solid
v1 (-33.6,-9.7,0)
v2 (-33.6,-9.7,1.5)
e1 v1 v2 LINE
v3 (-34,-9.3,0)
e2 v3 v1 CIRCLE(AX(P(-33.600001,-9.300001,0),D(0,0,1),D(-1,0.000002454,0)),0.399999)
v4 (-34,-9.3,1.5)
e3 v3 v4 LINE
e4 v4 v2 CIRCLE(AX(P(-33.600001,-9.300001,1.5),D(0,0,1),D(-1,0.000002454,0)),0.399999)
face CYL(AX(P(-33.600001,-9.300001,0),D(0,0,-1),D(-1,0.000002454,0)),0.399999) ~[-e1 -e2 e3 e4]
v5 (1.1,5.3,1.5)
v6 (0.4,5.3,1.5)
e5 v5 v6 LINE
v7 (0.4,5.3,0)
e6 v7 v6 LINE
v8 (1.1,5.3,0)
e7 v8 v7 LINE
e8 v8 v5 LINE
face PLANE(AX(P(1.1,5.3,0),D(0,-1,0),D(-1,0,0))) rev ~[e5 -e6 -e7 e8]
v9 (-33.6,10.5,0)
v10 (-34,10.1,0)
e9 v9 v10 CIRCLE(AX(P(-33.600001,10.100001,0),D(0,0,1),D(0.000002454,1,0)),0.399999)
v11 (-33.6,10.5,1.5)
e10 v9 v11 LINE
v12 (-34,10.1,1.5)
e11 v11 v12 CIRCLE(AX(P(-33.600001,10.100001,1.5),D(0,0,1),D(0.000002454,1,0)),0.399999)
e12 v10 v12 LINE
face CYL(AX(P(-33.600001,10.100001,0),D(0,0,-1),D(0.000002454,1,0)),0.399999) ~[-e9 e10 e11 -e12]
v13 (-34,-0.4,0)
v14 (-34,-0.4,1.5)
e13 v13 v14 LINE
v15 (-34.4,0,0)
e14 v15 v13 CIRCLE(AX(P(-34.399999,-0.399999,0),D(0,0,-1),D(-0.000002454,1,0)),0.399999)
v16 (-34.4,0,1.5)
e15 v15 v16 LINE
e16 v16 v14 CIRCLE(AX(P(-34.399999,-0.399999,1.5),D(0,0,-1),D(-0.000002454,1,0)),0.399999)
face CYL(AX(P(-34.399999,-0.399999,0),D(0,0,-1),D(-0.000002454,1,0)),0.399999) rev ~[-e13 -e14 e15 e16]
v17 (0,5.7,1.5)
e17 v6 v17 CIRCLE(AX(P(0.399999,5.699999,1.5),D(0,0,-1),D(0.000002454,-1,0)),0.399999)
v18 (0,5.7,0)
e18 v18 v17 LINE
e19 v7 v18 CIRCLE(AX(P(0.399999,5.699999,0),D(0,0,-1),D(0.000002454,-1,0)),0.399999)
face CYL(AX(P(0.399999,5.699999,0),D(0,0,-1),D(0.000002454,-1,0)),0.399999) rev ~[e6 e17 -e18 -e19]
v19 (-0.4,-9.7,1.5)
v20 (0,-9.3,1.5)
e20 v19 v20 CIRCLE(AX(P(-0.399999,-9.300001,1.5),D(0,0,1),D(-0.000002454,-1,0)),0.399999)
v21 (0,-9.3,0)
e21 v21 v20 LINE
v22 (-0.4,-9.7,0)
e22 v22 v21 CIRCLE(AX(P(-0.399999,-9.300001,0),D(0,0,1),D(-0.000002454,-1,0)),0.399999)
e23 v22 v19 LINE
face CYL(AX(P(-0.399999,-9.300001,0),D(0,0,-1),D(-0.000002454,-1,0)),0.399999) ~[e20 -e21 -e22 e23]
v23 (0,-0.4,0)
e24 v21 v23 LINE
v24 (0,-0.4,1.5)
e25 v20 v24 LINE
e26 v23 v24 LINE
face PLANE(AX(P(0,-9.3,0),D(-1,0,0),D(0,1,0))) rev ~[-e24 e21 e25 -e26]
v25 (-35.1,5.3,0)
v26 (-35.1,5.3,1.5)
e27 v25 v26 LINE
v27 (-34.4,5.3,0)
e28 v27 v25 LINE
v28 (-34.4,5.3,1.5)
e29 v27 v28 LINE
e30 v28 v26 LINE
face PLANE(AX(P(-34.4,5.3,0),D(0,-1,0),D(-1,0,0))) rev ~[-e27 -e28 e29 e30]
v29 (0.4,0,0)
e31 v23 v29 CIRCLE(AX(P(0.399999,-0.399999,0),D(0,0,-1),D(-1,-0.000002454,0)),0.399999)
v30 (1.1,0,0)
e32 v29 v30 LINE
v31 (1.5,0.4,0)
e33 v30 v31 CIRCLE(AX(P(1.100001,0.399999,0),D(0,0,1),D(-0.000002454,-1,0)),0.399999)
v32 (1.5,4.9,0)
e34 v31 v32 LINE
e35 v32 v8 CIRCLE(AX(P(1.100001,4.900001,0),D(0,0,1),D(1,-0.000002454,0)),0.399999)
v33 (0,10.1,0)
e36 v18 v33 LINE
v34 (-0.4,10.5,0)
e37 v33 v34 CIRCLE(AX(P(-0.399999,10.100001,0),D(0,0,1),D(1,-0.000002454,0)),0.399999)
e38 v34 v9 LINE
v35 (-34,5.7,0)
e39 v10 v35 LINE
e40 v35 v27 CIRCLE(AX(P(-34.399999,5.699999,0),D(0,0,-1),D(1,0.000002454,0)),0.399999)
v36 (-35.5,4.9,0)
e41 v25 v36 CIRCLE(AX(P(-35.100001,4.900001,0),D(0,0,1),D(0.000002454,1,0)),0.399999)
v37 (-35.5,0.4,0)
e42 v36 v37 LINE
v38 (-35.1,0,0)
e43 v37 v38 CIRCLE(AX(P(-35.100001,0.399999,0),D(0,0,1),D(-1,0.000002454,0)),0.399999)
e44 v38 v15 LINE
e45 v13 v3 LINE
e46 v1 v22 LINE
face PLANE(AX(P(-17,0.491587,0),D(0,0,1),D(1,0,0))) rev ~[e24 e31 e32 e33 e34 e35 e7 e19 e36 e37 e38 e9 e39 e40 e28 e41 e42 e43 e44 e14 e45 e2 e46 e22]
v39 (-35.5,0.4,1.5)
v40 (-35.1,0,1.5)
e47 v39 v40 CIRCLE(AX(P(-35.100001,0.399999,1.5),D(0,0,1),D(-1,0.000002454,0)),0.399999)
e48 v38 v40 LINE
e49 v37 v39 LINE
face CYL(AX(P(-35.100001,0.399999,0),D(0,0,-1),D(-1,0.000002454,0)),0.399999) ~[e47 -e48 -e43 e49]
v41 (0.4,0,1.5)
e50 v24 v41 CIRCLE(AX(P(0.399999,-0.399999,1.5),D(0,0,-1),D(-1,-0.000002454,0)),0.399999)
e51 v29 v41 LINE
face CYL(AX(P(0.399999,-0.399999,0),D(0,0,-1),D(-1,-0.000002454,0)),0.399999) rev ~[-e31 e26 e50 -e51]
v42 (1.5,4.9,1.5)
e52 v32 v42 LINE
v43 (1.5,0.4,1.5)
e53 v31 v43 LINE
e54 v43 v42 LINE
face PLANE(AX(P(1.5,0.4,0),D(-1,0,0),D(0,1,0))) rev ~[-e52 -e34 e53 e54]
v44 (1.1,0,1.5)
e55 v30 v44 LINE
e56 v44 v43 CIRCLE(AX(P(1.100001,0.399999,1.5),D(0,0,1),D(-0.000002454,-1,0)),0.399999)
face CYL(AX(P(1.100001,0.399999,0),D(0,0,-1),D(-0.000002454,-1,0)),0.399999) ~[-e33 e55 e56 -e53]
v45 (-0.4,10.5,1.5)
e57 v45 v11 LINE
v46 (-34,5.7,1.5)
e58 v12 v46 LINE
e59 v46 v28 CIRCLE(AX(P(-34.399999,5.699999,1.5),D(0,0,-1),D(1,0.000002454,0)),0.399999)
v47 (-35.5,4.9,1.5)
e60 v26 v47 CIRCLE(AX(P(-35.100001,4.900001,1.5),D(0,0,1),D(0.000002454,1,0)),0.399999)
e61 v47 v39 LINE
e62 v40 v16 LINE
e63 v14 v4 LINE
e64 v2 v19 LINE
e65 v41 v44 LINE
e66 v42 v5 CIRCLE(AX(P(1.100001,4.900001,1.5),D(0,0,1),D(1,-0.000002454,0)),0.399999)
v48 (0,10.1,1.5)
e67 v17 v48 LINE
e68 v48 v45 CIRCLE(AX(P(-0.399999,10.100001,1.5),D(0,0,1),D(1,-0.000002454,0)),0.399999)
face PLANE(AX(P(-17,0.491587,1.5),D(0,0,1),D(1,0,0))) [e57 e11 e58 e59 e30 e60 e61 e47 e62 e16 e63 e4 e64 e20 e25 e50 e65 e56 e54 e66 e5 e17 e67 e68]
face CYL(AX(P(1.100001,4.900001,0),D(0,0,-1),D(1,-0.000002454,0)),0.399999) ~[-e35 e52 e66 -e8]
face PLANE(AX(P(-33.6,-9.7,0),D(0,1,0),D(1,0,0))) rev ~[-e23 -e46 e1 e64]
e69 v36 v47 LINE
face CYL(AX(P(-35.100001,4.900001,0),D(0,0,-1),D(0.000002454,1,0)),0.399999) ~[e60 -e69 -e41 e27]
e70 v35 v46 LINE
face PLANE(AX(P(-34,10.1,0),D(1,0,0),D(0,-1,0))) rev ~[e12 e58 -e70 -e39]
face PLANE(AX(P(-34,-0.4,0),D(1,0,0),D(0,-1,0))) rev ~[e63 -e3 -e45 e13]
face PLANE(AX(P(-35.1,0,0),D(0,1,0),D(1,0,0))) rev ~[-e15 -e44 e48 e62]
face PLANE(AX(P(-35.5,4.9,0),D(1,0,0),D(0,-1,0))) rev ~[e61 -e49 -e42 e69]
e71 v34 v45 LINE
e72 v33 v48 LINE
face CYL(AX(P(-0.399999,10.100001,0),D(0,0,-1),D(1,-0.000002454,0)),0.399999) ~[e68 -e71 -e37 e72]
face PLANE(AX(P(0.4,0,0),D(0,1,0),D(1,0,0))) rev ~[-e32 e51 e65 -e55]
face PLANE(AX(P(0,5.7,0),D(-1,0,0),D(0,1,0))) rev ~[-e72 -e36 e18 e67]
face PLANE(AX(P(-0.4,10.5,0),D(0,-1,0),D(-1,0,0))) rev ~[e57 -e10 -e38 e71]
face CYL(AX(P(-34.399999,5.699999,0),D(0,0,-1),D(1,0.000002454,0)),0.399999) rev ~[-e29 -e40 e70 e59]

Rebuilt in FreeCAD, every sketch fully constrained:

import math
import FreeCAD as App
import Part
import Sketcher
Q = App.Units.Quantity

doc = App.newDocument("Part")
body = doc.addObject("PartDesign::Body", "Body")

# Sketch on XY plane
sketch1 = doc.addObject("Sketcher::SketchObject", "Sketch")
body.addObject(sketch1)
sketch1.AttachmentSupport = (doc.XY_Plane, [""])
sketch1.MapMode = "FlatFace"
sketch1.addGeometry(Part.LineSegment(App.Vector(0, -9.3, 0), App.Vector(0, -0.4, 0)), False)
sketch1.addGeometry(Part.ArcOfCircle(Part.Circle(App.Vector(0.4, -0.4, 0), App.Vector(0, 0, 1), 0.4), math.radians(90), math.radians(180)), False)
sketch1.addGeometry(Part.LineSegment(App.Vector(0.4, 0, 0), App.Vector(1.1, 0, 0)), False)
sketch1.addGeometry(Part.ArcOfCircle(Part.Circle(App.Vector(1.1, 0.4, 0), App.Vector(0, 0, 1), 0.4), math.radians(-90), math.radians(0)), False)
sketch1.addGeometry(Part.LineSegment(App.Vector(1.5, 0.4, 0), App.Vector(1.5, 4.9, 0)), False)
sketch1.addGeometry(Part.ArcOfCircle(Part.Circle(App.Vector(1.1, 4.9, 0), App.Vector(0, 0, 1), 0.4), math.radians(0), math.radians(90)), False)
sketch1.addGeometry(Part.LineSegment(App.Vector(1.1, 5.3, 0), App.Vector(0.4, 5.3, 0)), False)
sketch1.addGeometry(Part.ArcOfCircle(Part.Circle(App.Vector(0.4, 5.7, 0), App.Vector(0, 0, 1), 0.4), math.radians(180), math.radians(270)), False)
sketch1.addGeometry(Part.LineSegment(App.Vector(0, 5.7, 0), App.Vector(0, 10.1, 0)), False)
sketch1.addGeometry(Part.ArcOfCircle(Part.Circle(App.Vector(-0.4, 10.1, 0), App.Vector(0, 0, 1), 0.4), math.radians(0), math.radians(90)), False)
sketch1.addGeometry(Part.LineSegment(App.Vector(-0.4, 10.5, 0), App.Vector(-33.6, 10.5, 0)), False)
sketch1.addGeometry(Part.ArcOfCircle(Part.Circle(App.Vector(-33.6, 10.1, 0), App.Vector(0, 0, 1), 0.4), math.radians(90), math.radians(180)), False)
sketch1.addGeometry(Part.LineSegment(App.Vector(-34, 10.1, 0), App.Vector(-34, 5.7, 0)), False)
sketch1.addGeometry(Part.ArcOfCircle(Part.Circle(App.Vector(-34.4, 5.7, 0), App.Vector(0, 0, 1), 0.4), math.radians(-90), math.radians(0)), False)
sketch1.addGeometry(Part.LineSegment(App.Vector(-34.4, 5.3, 0), App.Vector(-35.1, 5.3, 0)), False)
sketch1.addGeometry(Part.ArcOfCircle(Part.Circle(App.Vector(-35.1, 4.9, 0), App.Vector(0, 0, 1), 0.4), math.radians(90), math.radians(180)), False)
sketch1.addGeometry(Part.LineSegment(App.Vector(-35.5, 4.9, 0), App.Vector(-35.5, 0.4, 0)), False)
sketch1.addGeometry(Part.ArcOfCircle(Part.Circle(App.Vector(-35.1, 0.4, 0), App.Vector(0, 0, 1), 0.4), math.radians(180), math.radians(270)), False)
sketch1.addGeometry(Part.LineSegment(App.Vector(-35.1, 0, 0), App.Vector(-34.4, 0, 0)), False)
sketch1.addGeometry(Part.ArcOfCircle(Part.Circle(App.Vector(-34.4, -0.4, 0), App.Vector(0, 0, 1), 0.4), math.radians(0), math.radians(90)), False)
sketch1.addGeometry(Part.LineSegment(App.Vector(-34, -0.4, 0), App.Vector(-34, -9.3, 0)), False)
sketch1.addGeometry(Part.ArcOfCircle(Part.Circle(App.Vector(-33.6, -9.3, 0), App.Vector(0, 0, 1), 0.4), math.radians(180), math.radians(270)), False)
sketch1.addGeometry(Part.LineSegment(App.Vector(-33.6, -9.7, 0), App.Vector(-0.4, -9.7, 0)), False)
sketch1.addGeometry(Part.ArcOfCircle(Part.Circle(App.Vector(-0.4, -9.3, 0), App.Vector(0, 0, 1), 0.4), math.radians(-90), math.radians(0)), False)
sketch1.addConstraint(Sketcher.Constraint("Coincident", 0, 2, 1, 2))
sketch1.addConstraint(Sketcher.Constraint("Coincident", 1, 1, 2, 1))
sketch1.addConstraint(Sketcher.Constraint("Coincident", 2, 2, 3, 1))
sketch1.addConstraint(Sketcher.Constraint("Coincident", 3, 2, 4, 1))
sketch1.addConstraint(Sketcher.Constraint("Coincident", 4, 2, 5, 1))
sketch1.addConstraint(Sketcher.Constraint("Coincident", 5, 2, 6, 1))
sketch1.addConstraint(Sketcher.Constraint("Coincident", 6, 2, 7, 2))
sketch1.addConstraint(Sketcher.Constraint("Coincident", 7, 1, 8, 1))
sketch1.addConstraint(Sketcher.Constraint("Coincident", 8, 2, 9, 1))
sketch1.addConstraint(Sketcher.Constraint("Coincident", 9, 2, 10, 1))
sketch1.addConstraint(Sketcher.Constraint("Coincident", 10, 2, 11, 1))
sketch1.addConstraint(Sketcher.Constraint("Coincident", 11, 2, 12, 1))
sketch1.addConstraint(Sketcher.Constraint("Coincident", 12, 2, 13, 2))
sketch1.addConstraint(Sketcher.Constraint("Coincident", 13, 1, 14, 1))
sketch1.addConstraint(Sketcher.Constraint("Coincident", 14, 2, 15, 1))
sketch1.addConstraint(Sketcher.Constraint("Coincident", 15, 2, 16, 1))
sketch1.addConstraint(Sketcher.Constraint("Coincident", 16, 2, 17, 1))
sketch1.addConstraint(Sketcher.Constraint("Coincident", 17, 2, 18, 1))
sketch1.addConstraint(Sketcher.Constraint("Coincident", 18, 2, 19, 2))
sketch1.addConstraint(Sketcher.Constraint("Coincident", 19, 1, 20, 1))
sketch1.addConstraint(Sketcher.Constraint("Coincident", 20, 2, 21, 1))
sketch1.addConstraint(Sketcher.Constraint("Coincident", 21, 2, 22, 1))
sketch1.addConstraint(Sketcher.Constraint("Coincident", 22, 2, 23, 1))
sketch1.addConstraint(Sketcher.Constraint("Coincident", 23, 2, 0, 1))
sketch1.addConstraint(Sketcher.Constraint("Vertical", 0))
sketch1.addConstraint(Sketcher.Constraint("Horizontal", 2))
sketch1.addConstraint(Sketcher.Constraint("Vertical", 4))
sketch1.addConstraint(Sketcher.Constraint("Horizontal", 6))
sketch1.addConstraint(Sketcher.Constraint("Vertical", 8))
sketch1.addConstraint(Sketcher.Constraint("Horizontal", 10))
sketch1.addConstraint(Sketcher.Constraint("Vertical", 12))
sketch1.addConstraint(Sketcher.Constraint("Horizontal", 14))
sketch1.addConstraint(Sketcher.Constraint("Vertical", 16))
sketch1.addConstraint(Sketcher.Constraint("Horizontal", 18))
sketch1.addConstraint(Sketcher.Constraint("Vertical", 20))
sketch1.addConstraint(Sketcher.Constraint("Horizontal", 22))
sketch1.addConstraint(Sketcher.Constraint("Equal", 1, 3))
sketch1.addConstraint(Sketcher.Constraint("Equal", 3, 5))
sketch1.addConstraint(Sketcher.Constraint("Equal", 5, 7))
sketch1.addConstraint(Sketcher.Constraint("Equal", 7, 9))
sketch1.addConstraint(Sketcher.Constraint("Equal", 9, 11))
sketch1.addConstraint(Sketcher.Constraint("Equal", 11, 13))
sketch1.addConstraint(Sketcher.Constraint("Equal", 13, 15))
sketch1.addConstraint(Sketcher.Constraint("Equal", 15, 17))
sketch1.addConstraint(Sketcher.Constraint("Equal", 17, 19))
sketch1.addConstraint(Sketcher.Constraint("Equal", 19, 21))
sketch1.addConstraint(Sketcher.Constraint("Equal", 21, 23))
sketch1.addConstraint(Sketcher.Constraint("PointOnObject", 0, 2, -2))
sketch1.addConstraint(Sketcher.Constraint("PointOnObject", 1, 1, -1))
sketch1.addConstraint(Sketcher.Constraint("PointOnObject", 7, 1, -2))
sketch1.addConstraint(Sketcher.Constraint("PointOnObject", 17, 2, -1))
sketch1.addConstraint(Sketcher.Constraint("Horizontal", 7, 3, 13, 3))
sketch1.addConstraint(Sketcher.Constraint("Horizontal", 19, 3, 0, 2))
sketch1.addConstraint(Sketcher.Constraint("Horizontal", 17, 3, 3, 2))
sketch1.addConstraint(Sketcher.Constraint("Horizontal", 15, 3, 4, 2))
sketch1.addConstraint(Sketcher.Constraint("Horizontal", 13, 3, 7, 1))
sketch1.addConstraint(Sketcher.Constraint("Horizontal", 11, 3, 8, 2))
sketch1.addConstraint(Sketcher.Constraint("Horizontal", 8, 2, 11, 2))
sketch1.addConstraint(Sketcher.Constraint("Horizontal", 7, 1, 12, 2))
sketch1.addConstraint(Sketcher.Constraint("Horizontal", 4, 2, 15, 2))
sketch1.addConstraint(Sketcher.Constraint("Horizontal", 3, 2, 16, 2))
sketch1.addConstraint(Sketcher.Constraint("Horizontal", 0, 2, 19, 1))
sketch1.addConstraint(Sketcher.Constraint("Horizontal", 23, 3, 20, 2))
sketch1.addConstraint(Sketcher.Constraint("Horizontal", 20, 2, 23, 2))
sketch1.addConstraint(Sketcher.Constraint("Vertical", 13, 3, 19, 3))
sketch1.addConstraint(Sketcher.Constraint("Vertical", 7, 3, 1, 1))
sketch1.addConstraint(Sketcher.Constraint("Vertical", 5, 3, 2, 2))
sketch1.addConstraint(Sketcher.Constraint("Vertical", 2, 2, 5, 2))
sketch1.addConstraint(Sketcher.Constraint("Vertical", 1, 1, 6, 2))
sketch1.addConstraint(Sketcher.Constraint("Vertical", 23, 3, 9, 2))
sketch1.addConstraint(Sketcher.Constraint("Vertical", 21, 3, 10, 2))
sketch1.addConstraint(Sketcher.Constraint("Vertical", 19, 3, 13, 1))
sketch1.addConstraint(Sketcher.Constraint("Vertical", 17, 3, 14, 2))
sketch1.addConstraint(Sketcher.Constraint("Vertical", 14, 2, 17, 2))
sketch1.addConstraint(Sketcher.Constraint("Vertical", 13, 1, 18, 2))
sketch1.addConstraint(Sketcher.Constraint("Vertical", 10, 2, 21, 2))
sketch1.addConstraint(Sketcher.Constraint("Vertical", 9, 2, 22, 2))
sketch1.addConstraint(Sketcher.Constraint("Equal", 6, 14))
sketch1.addConstraint(Sketcher.Constraint("Radius", 1, Q("0.399999 mm")))
sketch1.addConstraint(Sketcher.Constraint("DistanceX", 2, 1, 2, 2, Q("0.7 mm")))
sketch1.addConstraint(Sketcher.Constraint("DistanceX", 10, 2, 10, 1, Q("33.2 mm")))
sketch1.addConstraint(Sketcher.Constraint("DistanceY", 0, 1, 0, 2, Q("8.9 mm")))
sketch1.addConstraint(Sketcher.Constraint("DistanceY", 4, 1, 4, 2, Q("4.5 mm")))
sketch1.addConstraint(Sketcher.Constraint("DistanceY", 8, 1, 8, 2, Q("4.4 mm")))
pad1 = doc.addObject("PartDesign::Pad", "Pad")
body.addObject(pad1)
pad1.Profile = sketch1
pad1.Length = 1.5

doc.recompute()
